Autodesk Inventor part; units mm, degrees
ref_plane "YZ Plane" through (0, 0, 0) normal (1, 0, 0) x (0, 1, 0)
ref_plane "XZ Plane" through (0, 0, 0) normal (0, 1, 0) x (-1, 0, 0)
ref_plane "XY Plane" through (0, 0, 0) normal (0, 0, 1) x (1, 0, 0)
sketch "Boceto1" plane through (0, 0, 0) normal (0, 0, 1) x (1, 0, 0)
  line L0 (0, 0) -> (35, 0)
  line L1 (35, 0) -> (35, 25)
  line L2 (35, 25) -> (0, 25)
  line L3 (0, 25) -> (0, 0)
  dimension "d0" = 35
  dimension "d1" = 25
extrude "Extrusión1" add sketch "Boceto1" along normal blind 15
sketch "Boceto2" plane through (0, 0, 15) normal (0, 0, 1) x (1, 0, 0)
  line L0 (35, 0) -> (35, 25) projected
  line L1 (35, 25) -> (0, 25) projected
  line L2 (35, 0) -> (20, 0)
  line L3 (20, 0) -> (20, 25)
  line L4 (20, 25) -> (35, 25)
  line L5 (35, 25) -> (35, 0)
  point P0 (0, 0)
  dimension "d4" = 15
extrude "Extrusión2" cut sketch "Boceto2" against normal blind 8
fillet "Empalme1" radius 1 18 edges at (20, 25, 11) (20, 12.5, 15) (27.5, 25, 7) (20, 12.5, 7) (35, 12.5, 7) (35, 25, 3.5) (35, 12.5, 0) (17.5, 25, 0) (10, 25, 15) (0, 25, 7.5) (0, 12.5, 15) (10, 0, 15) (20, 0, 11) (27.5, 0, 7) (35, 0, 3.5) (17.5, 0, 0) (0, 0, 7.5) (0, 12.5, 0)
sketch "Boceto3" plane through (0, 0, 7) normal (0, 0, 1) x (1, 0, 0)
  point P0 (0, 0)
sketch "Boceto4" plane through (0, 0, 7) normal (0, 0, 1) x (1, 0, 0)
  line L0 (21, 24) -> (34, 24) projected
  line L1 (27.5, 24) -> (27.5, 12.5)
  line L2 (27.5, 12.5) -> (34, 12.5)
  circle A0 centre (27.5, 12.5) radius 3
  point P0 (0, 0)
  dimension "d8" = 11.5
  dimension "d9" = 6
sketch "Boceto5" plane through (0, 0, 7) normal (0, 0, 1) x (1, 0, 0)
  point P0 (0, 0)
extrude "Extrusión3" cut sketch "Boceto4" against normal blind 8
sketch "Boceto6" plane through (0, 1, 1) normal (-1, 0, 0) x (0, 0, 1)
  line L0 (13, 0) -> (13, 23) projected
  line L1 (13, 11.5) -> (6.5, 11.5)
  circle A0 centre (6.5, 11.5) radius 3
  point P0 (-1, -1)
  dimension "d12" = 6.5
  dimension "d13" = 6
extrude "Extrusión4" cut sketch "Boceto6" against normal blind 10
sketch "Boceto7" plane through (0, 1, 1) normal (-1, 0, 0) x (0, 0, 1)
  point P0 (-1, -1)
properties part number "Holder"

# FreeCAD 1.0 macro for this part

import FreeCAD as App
import Part
import Sketcher
from FreeCAD import Vector

doc = App.newDocument("Part")
body = doc.addObject("PartDesign::Body", "Body")

# Sketch on XY plane
sketch1 = body.newObject("Sketcher::SketchObject", "Sketch")
sketch1.AttachmentSupport = (doc.getObject("XY_Plane"), [""])
sketch1.MapMode = "FlatFace"
sketch1.addGeometry([
    Part.LineSegment(Vector(0, 25, 0), Vector(0, 0, 0)),
    Part.LineSegment(Vector(0, 0, 0), Vector(35, 0, 0)),
    Part.LineSegment(Vector(35, 0, 0), Vector(35, 25, 0)),
    Part.LineSegment(Vector(35, 25, 0), Vector(0, 25, 0)),
], False)
sketch1.addConstraint([
    Sketcher.Constraint("Coincident", 0, 2, 1, 1),
    Sketcher.Constraint("Coincident", 1, 2, 2, 1),
    Sketcher.Constraint("Coincident", 2, 2, 3, 1),
    Sketcher.Constraint("Coincident", 3, 2, 0, 1),
    Sketcher.Constraint("Vertical", 0),
    Sketcher.Constraint("Horizontal", 1),
    Sketcher.Constraint("Vertical", 2),
    Sketcher.Constraint("Horizontal", 3),
    Sketcher.Constraint("Coincident", 0, 2, -1, 1),
    Sketcher.Constraint("DistanceX", 1, 1, 1, 2, 35.0),
    Sketcher.Constraint("DistanceY", 0, 2, 0, 1, 25.0),
])
pad1 = body.newObject("PartDesign::Pad", "Pad")
pad1.Profile = sketch1
pad1.Length = 15

# Sketch on XY plane
sketch2 = body.newObject("Sketcher::SketchObject", "Sketch001")
sketch2.AttachmentSupport = (doc.getObject("XY_Plane"), [""])
sketch2.MapMode = "FlatFace"
sketch2.AttachmentOffset = App.Placement(Vector(0, 0, 15), App.Rotation())
sketch2.addGeometry([
    Part.LineSegment(Vector(20, 0, 0), Vector(35, 0, 0)),
    Part.LineSegment(Vector(35, 0, 0), Vector(35, 25, 0)),
    Part.LineSegment(Vector(35, 25, 0), Vector(20, 25, 0)),
    Part.LineSegment(Vector(20, 25, 0), Vector(20, 0, 0)),
], False)
sketch2.addConstraint([
    Sketcher.Constraint("Coincident", 0, 2, 1, 1),
    Sketcher.Constraint("Coincident", 1, 2, 2, 1),
    Sketcher.Constraint("Coincident", 2, 2, 3, 1),
    Sketcher.Constraint("Coincident", 3, 2, 0, 1),
    Sketcher.Constraint("Horizontal", 0),
    Sketcher.Constraint("Vertical", 1),
    Sketcher.Constraint("Horizontal", 2),
    Sketcher.Constraint("Vertical", 3),
    Sketcher.Constraint("PointOnObject", 0, 2, -1),
    Sketcher.Constraint("DistanceX", 0, 1, 0, 2, 15.0),
    Sketcher.Constraint("DistanceY", 1, 1, 1, 2, 25.0),
    Sketcher.Constraint("DistanceX", -1, 1, 0, 2, 35.0),
])
pocket1 = body.newObject("PartDesign::Pocket", "Pocket")
pocket1.Profile = sketch2
pocket1.Length = 8
doc.recompute()

fillet = body.newObject("PartDesign::Fillet", "Fillet")
fillet.Base = (pocket1, ["Edge1"])
fillet.UseAllEdges = True
fillet.Radius = 1

# Sketch on XY plane
sketch3 = body.newObject("Sketcher::SketchObject", "Sketch002")
sketch3.AttachmentSupport = (doc.getObject("XY_Plane"), [""])
sketch3.MapMode = "FlatFace"
sketch3.AttachmentOffset = App.Placement(Vector(0, 0, 7), App.Rotation())
sketch3.addGeometry(Part.Circle(Vector(27.5, 12.5, 0), Vector(0, 0, 1), 3), False)
sketch3.addConstraint([
    Sketcher.Constraint("Diameter", 0, 6.0),
    Sketcher.Constraint("DistanceX", -1, 1, 0, 3, 27.5),
    Sketcher.Constraint("DistanceY", -1, 1, 0, 3, 12.5),
])
pocket2 = body.newObject("PartDesign::Pocket", "Pocket001")
pocket2.Profile = sketch3
pocket2.Length = 8

# Sketch on YZ plane
sketch4 = body.newObject("Sketcher::SketchObject", "Sketch003")
sketch4.AttachmentSupport = (doc.getObject("YZ_Plane"), [""])
sketch4.MapMode = "FlatFace"
sketch4.addGeometry(Part.Circle(Vector(12.5, 7.5, 0), Vector(0, 0, 1), 3), False)
sketch4.addConstraint([
    Sketcher.Constraint("Diameter", 0, 6.0),
    Sketcher.Constraint("DistanceX", -1, 1, 0, 3, 12.5),
    Sketcher.Constraint("DistanceY", -1, 1, 0, 3, 7.5),
])
pocket3 = body.newObject("PartDesign::Pocket", "Pocket002")
pocket3.Profile = sketch4
pocket3.Length = 10
pocket3.Reversed = True

doc.recompute()
